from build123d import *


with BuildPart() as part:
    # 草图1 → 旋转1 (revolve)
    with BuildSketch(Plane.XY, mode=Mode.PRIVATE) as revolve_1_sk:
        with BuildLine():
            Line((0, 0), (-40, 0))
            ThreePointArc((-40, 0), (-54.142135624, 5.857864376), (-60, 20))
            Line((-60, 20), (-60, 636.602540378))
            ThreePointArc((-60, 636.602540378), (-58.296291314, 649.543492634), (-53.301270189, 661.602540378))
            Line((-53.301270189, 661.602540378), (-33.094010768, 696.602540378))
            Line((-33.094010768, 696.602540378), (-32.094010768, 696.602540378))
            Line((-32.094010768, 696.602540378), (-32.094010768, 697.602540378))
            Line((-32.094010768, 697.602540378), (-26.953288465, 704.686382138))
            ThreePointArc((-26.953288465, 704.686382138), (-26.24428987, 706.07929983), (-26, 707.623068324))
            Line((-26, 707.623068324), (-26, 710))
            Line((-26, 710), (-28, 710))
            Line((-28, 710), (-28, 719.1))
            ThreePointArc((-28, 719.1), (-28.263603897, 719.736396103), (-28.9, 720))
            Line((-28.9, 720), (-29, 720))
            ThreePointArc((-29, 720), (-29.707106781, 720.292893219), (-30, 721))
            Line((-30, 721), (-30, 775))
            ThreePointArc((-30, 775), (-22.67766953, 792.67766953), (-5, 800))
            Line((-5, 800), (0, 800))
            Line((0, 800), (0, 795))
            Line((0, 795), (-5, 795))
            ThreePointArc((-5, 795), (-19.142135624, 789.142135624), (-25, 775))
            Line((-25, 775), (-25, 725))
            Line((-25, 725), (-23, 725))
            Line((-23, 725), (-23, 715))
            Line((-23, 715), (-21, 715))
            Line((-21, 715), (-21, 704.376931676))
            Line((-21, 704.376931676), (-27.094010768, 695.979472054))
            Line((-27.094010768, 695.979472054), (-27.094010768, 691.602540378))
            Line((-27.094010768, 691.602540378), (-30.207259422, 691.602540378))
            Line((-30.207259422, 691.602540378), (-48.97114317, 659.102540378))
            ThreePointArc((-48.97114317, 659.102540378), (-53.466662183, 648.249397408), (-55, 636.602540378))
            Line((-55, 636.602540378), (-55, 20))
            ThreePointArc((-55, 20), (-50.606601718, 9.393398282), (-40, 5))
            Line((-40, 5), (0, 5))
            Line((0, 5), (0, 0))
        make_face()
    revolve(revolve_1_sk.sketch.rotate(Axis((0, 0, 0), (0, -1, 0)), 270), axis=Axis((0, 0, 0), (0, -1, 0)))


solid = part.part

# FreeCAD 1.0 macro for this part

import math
import FreeCAD as App
import Part
import Sketcher
Q = App.Units.Quantity

doc = App.newDocument("Part")
body = doc.addObject("PartDesign::Body", "Body")

sketch1 = body.newObject("Sketcher::SketchObject", "Sketch")
sketch1.AttachmentSupport = (doc.getObject("XY_Plane"), [""])
sketch1.MapMode = "FlatFace"
sketch1.addGeometry([
    Part.LineSegment(App.Vector(-40, 0, 0), App.Vector(0, 0, 0)),
    Part.LineSegment(App.Vector(0, 0, 0), App.Vector(0, 5, 0)),
    Part.LineSegment(App.Vector(0, 5, 0), App.Vector(-40, 5, 0)),
    Part.ArcOfCircle(Part.Circle(App.Vector(-40, 20, 0), App.Vector(0, 0, 1), 15), math.radians(180), math.radians(270)),
    Part.LineSegment(App.Vector(-55, 20, 0), App.Vector(-55, 636.60254, 0)),
    Part.ArcOfCircle(Part.Circle(App.Vector(-10, 636.60254, 0), App.Vector(0, 0, 1), 45), math.radians(150), math.radians(180)),
    Part.LineSegment(App.Vector(-48.971143, 659.10254, 0), App.Vector(-30.207259, 691.60254, 0)),
    Part.LineSegment(App.Vector(-30.207259, 691.60254, 0), App.Vector(-27.094011, 691.60254, 0)),
    Part.LineSegment(App.Vector(-27.094011, 691.60254, 0), App.Vector(-27.094011, 695.979472, 0)),
    Part.LineSegment(App.Vector(-27.094011, 695.979472, 0), App.Vector(-21, 704.376932, 0)),
    Part.LineSegment(App.Vector(-21, 704.376932, 0), App.Vector(-21, 715, 0)),
    Part.LineSegment(App.Vector(-21, 715, 0), App.Vector(-23, 715, 0)),
    Part.LineSegment(App.Vector(-23, 715, 0), App.Vector(-23, 725, 0)),
    Part.LineSegment(App.Vector(-23, 725, 0), App.Vector(-25, 725, 0)),
    Part.LineSegment(App.Vector(-25, 725, 0), App.Vector(-25, 775, 0)),
    Part.ArcOfCircle(Part.Circle(App.Vector(-5, 775, 0), App.Vector(0, 0, 1), 20), math.radians(90), math.radians(180)),
    Part.LineSegment(App.Vector(-5, 795, 0), App.Vector(0, 795, 0)),
    Part.LineSegment(App.Vector(0, 795, 0), App.Vector(0, 800, 0)),
    Part.LineSegment(App.Vector(0, 800, 0), App.Vector(-5, 800, 0)),
    Part.ArcOfCircle(Part.Circle(App.Vector(-5, 775, 0), App.Vector(0, 0, 1), 25), math.radians(90), math.radians(180)),
    Part.LineSegment(App.Vector(-30, 775, 0), App.Vector(-30, 721, 0)),
    Part.ArcOfCircle(Part.Circle(App.Vector(-29, 721, 0), App.Vector(0, 0, 1), 1), math.radians(-180), math.radians(-90)),
    Part.LineSegment(App.Vector(-29, 720, 0), App.Vector(-28.9, 720, 0)),
    Part.ArcOfCircle(Part.Circle(App.Vector(-28.9, 719.1, 0), App.Vector(0, 0, 1), 0.9), math.radians(0), math.radians(90)),
    Part.LineSegment(App.Vector(-28, 719.1, 0), App.Vector(-28, 710, 0)),
    Part.LineSegment(App.Vector(-28, 710, 0), App.Vector(-26, 710, 0)),
    Part.LineSegment(App.Vector(-26, 710, 0), App.Vector(-26, 707.623068, 0)),
    Part.ArcOfCircle(Part.Circle(App.Vector(-31, 707.623068, 0), App.Vector(0, 0, 1), 5), math.radians(-35.968277), math.radians(0)),
    Part.LineSegment(App.Vector(-26.953288, 704.686382, 0), App.Vector(-32.094011, 697.60254, 0)),
    Part.LineSegment(App.Vector(-32.094011, 697.60254, 0), App.Vector(-32.094011, 696.60254, 0)),
    Part.LineSegment(App.Vector(-32.094011, 696.60254, 0), App.Vector(-33.094011, 696.60254, 0)),
    Part.LineSegment(App.Vector(-33.094011, 696.60254, 0), App.Vector(-53.30127, 661.60254, 0)),
    Part.ArcOfCircle(Part.Circle(App.Vector(-10, 636.60254, 0), App.Vector(0, 0, 1), 50), math.radians(150), math.radians(180)),
    Part.LineSegment(App.Vector(-60, 636.60254, 0), App.Vector(-60, 20, 0)),
    Part.ArcOfCircle(Part.Circle(App.Vector(-40, 20, 0), App.Vector(0, 0, 1), 20), math.radians(180), math.radians(270)),
], False)
sketch1.addConstraint([
    Sketcher.Constraint("Coincident", 0, 2, 1, 1),
    Sketcher.Constraint("Coincident", 1, 2, 2, 1),
    Sketcher.Constraint("Tangent", 2, 2, 3, 2),
    Sketcher.Constraint("Tangent", 3, 1, 4, 1),
    Sketcher.Constraint("Tangent", 4, 2, 5, 2),
    Sketcher.Constraint("Tangent", 5, 1, 6, 1),
    Sketcher.Constraint("Coincident", 6, 2, 7, 1),
    Sketcher.Constraint("Coincident", 7, 2, 8, 1),
    Sketcher.Constraint("Coincident", 8, 2, 9, 1),
    Sketcher.Constraint("Coincident", 9, 2, 10, 1),
    Sketcher.Constraint("Coincident", 10, 2, 11, 1),
    Sketcher.Constraint("Coincident", 11, 2, 12, 1),
    Sketcher.Constraint("Coincident", 12, 2, 13, 1),
    Sketcher.Constraint("Coincident", 13, 2, 14, 1),
    Sketcher.Constraint("Tangent", 14, 2, 15, 2),
    Sketcher.Constraint("Tangent", 15, 1, 16, 1),
    Sketcher.Constraint("Coincident", 16, 2, 17, 1),
    Sketcher.Constraint("Coincident", 17, 2, 18, 1),
    Sketcher.Constraint("Tangent", 18, 2, 19, 1),
    Sketcher.Constraint("Tangent", 19, 2, 20, 1),
    Sketcher.Constraint("Tangent", 20, 2, 21, 1),
    Sketcher.Constraint("Tangent", 21, 2, 22, 1),
    Sketcher.Constraint("Tangent", 22, 2, 23, 2),
    Sketcher.Constraint("Tangent", 23, 1, 24, 1),
    Sketcher.Constraint("Coincident", 24, 2, 25, 1),
    Sketcher.Constraint("Coincident", 25, 2, 26, 1),
    Sketcher.Constraint("Tangent", 26, 2, 27, 2),
    Sketcher.Constraint("Tangent", 27, 1, 28, 1),
    Sketcher.Constraint("Coincident", 28, 2, 29, 1),
    Sketcher.Constraint("Coincident", 29, 2, 30, 1),
    Sketcher.Constraint("Coincident", 30, 2, 31, 1),
    Sketcher.Constraint("Tangent", 31, 2, 32, 1),
    Sketcher.Constraint("Tangent", 32, 2, 33, 1),
    Sketcher.Constraint("Tangent", 33, 2, 34, 1),
    Sketcher.Constraint("Tangent", 34, 2, 0, 1),
    Sketcher.Constraint("Horizontal", 0),
    Sketcher.Constraint("Vertical", 1),
    Sketcher.Constraint("Horizontal", 2),
    Sketcher.Constraint("Vertical", 4),
    Sketcher.Constraint("Horizontal", 7),
    Sketcher.Constraint("Vertical", 8),
    Sketcher.Constraint("Vertical", 10),
    Sketcher.Constraint("Horizontal", 11),
    Sketcher.Constraint("Vertical", 12),
    Sketcher.Constraint("Horizontal", 13),
    Sketcher.Constraint("Vertical", 14),
    Sketcher.Constraint("Horizontal", 16),
    Sketcher.Constraint("Vertical", 17),
    Sketcher.Constraint("Horizontal", 18),
    Sketcher.Constraint("Vertical", 20),
    Sketcher.Constraint("Horizontal", 22),
    Sketcher.Constraint("Vertical", 24),
    Sketcher.Constraint("Horizontal", 25),
    Sketcher.Constraint("Vertical", 26),
    Sketcher.Constraint("Vertical", 29),
    Sketcher.Constraint("Horizontal", 30),
    Sketcher.Constraint("Vertical", 33),
    Sketcher.Constraint("Coincident", 0, 2, -1, 1),
    Sketcher.Constraint("Coincident", 19, 3, 15, 3),
    Sketcher.Constraint("Coincident", 32, 3, 5, 3),
    Sketcher.Constraint("Coincident", 34, 3, 3, 3),
    Sketcher.Constraint("Equal", 15, 34),
    Sketcher.Constraint("PointOnObject", 16, 2, -2),
    Sketcher.Constraint("Parallel", 9, 28),
    Sketcher.Constraint("Parallel", 6, 31),
    Sketcher.Constraint("Equal", 11, 13),
    Sketcher.Constraint("Equal", 13, 25),
    Sketcher.Constraint("Equal", 18, 1),
    Sketcher.Constraint("Equal", 1, 17),
    Sketcher.Constraint("Equal", 30, 29),
    Sketcher.Constraint("Radius", 3, 15.0),
    Sketcher.Constraint("Radius", 5, 45.0),
    Sketcher.Constraint("Radius", 15, 20.0),
    Sketcher.Constraint("Radius", 21, 1.0),
    Sketcher.Constraint("Radius", 27, 5.0),
    Sketcher.Constraint("Radius", 23, 0.9),
    Sketcher.Constraint("DistanceX", 0, 1, 0, 2, 40.0),
    Sketcher.Constraint("DistanceX", 11, 2, 11, 1, 2.0),
    Sketcher.Constraint("DistanceX", 30, 2, 30, 1, 1.0),
    Sketcher.Constraint("DistanceY", 12, 1, 12, 2, 10.0),
    Sketcher.Constraint("DistanceY", 14, 1, 14, 2, 50.0),
    Sketcher.Constraint("DistanceY", 20, 2, 20, 1, 54.0),
    Sketcher.Constraint("Angle", 6, Q("60 deg")),
    Sketcher.Constraint("DistanceX", 22, 1, 22, 2, 0.1),
    Sketcher.Constraint("DistanceY", 24, 2, 24, 1, 9.1),
    Sketcher.Constraint("DistanceY", -1, 1, 15, 3, 775.0),
    Sketcher.Constraint("DistanceY", 5, 3, 6, 2, 55.0),
    Sketcher.Constraint("DistanceX", 28, 2, 8, 2, 5.0),
    Sketcher.Constraint("DistanceY", 6, 2, 28, 2, 6.0),
    Sketcher.Constraint("DistanceY", 4, 1, 4, 2, 616.60254),
    Sketcher.Constraint("DistanceY", 8, 1, 8, 2, 4.376932),
    Sketcher.Constraint("DistanceY", 10, 1, 10, 2, 10.623068),
])
revolution = body.newObject("PartDesign::Revolution", "Revolution")
revolution.Profile = sketch1
revolution.ReferenceAxis = (sketch1, ["V_Axis"])
revolution.Angle = 360

doc.recompute()
